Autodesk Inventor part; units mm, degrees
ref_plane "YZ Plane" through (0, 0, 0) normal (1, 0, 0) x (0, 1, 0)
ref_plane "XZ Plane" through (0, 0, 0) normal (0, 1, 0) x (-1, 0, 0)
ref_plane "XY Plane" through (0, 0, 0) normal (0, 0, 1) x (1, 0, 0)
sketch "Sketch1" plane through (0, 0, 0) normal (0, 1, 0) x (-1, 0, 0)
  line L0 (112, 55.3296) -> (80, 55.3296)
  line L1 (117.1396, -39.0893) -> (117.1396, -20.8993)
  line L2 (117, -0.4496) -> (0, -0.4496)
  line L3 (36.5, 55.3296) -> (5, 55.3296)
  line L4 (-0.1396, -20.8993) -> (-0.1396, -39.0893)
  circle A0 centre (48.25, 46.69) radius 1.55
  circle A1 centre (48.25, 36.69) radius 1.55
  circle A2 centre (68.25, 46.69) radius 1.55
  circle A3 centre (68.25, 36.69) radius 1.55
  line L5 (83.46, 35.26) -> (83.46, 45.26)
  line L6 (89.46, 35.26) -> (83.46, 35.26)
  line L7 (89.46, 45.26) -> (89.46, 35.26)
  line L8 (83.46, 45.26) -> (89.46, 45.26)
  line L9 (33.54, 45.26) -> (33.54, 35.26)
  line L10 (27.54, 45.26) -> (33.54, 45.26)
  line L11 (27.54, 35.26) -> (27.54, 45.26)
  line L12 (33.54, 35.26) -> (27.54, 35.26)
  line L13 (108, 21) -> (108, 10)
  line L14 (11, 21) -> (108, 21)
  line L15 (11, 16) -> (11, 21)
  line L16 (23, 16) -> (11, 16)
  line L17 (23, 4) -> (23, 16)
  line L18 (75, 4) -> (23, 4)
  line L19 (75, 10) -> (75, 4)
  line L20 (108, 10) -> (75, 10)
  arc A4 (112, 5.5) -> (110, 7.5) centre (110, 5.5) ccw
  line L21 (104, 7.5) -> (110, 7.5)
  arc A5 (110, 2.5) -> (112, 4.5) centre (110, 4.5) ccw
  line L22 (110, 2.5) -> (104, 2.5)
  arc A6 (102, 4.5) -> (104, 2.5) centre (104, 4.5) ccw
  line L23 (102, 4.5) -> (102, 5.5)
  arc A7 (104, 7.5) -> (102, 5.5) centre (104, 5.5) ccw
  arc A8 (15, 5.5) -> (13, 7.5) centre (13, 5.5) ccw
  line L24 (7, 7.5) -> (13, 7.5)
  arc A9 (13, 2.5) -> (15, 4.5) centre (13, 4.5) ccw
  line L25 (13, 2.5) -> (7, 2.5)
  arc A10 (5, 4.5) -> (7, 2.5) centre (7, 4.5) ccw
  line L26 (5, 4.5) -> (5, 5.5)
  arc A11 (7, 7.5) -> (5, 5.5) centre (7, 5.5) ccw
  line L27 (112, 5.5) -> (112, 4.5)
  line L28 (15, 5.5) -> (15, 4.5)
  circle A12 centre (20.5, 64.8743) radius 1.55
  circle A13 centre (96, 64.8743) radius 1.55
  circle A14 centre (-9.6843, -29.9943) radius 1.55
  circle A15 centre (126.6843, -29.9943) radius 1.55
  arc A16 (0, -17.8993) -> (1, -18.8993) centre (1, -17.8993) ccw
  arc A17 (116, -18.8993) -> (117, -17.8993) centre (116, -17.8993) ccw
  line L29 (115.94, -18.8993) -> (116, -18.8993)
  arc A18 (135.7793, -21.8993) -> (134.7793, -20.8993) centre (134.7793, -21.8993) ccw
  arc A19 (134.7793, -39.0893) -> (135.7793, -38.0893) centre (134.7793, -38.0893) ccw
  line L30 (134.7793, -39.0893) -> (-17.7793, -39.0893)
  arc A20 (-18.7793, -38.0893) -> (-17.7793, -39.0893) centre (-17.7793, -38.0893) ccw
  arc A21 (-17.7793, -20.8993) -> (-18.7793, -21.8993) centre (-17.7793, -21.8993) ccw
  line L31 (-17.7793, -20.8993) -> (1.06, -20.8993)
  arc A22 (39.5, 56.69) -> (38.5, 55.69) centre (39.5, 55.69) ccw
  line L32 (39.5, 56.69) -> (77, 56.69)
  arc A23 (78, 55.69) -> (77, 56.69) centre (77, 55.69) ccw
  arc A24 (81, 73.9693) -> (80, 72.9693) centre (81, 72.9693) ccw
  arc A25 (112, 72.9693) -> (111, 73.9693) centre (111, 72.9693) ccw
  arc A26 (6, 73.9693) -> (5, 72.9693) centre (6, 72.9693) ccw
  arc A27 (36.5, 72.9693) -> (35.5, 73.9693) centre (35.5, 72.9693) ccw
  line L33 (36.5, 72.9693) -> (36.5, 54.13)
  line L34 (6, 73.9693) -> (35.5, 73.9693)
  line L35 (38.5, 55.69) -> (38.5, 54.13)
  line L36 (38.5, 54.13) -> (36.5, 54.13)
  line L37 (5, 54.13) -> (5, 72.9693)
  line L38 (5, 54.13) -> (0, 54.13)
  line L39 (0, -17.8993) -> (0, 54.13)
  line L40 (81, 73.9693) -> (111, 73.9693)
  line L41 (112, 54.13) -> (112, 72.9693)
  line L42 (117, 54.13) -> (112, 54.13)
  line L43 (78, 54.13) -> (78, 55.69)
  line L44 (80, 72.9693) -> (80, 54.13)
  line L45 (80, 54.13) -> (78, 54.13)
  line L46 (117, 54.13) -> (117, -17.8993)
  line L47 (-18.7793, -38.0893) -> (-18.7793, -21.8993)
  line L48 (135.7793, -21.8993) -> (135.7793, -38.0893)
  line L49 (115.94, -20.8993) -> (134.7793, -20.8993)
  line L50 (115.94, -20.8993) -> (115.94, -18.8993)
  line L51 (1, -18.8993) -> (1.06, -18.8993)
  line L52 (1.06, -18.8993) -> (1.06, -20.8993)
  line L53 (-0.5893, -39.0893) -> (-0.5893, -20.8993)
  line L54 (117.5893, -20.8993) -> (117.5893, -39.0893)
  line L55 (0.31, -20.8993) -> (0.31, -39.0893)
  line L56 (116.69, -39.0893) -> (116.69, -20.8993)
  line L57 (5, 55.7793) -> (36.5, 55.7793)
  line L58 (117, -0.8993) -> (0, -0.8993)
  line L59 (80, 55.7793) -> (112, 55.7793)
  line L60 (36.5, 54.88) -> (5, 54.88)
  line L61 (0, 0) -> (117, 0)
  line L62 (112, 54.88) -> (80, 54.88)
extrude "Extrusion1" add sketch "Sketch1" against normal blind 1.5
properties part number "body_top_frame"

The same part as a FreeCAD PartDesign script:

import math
import FreeCAD as App
import Part
import Sketcher

V = App.Vector
Q = App.Units.Quantity


def add_polygon(sketch, points):
    """Adds a closed chain of lines whose ends are joined by coincident constraints."""
    first, n = sketch.GeometryCount, len(points)
    for a, b in zip(points, points[1:] + points[:1]):
        sketch.addGeometry(Part.LineSegment(App.Vector(*a, 0), App.Vector(*b, 0)), False)
    for i in range(n):
        sketch.addConstraint(Sketcher.Constraint("Coincident", first + i, 2, first + (i + 1) % n, 1))

doc = App.newDocument("Part")
body = doc.addObject("PartDesign::Body", "Body")

# Sketch on XZ plane
sketch1 = body.newObject("Sketcher::SketchObject", "Sketch")
sketch1.AttachmentSupport = (doc.getObject("XZ_Plane"), [""])
sketch1.MapMode = "FlatFace"
sketch1.addGeometry(Part.ArcOfCircle(Part.Circle(V(-111, 72.97, 0), V(0, 0, 1), 1), math.radians(90), math.radians(180)), False)  # 0
sketch1.addGeometry(Part.LineSegment(V(-111, 73.97, 0), V(-81, 73.97, 0)), False)  # 1
sketch1.addGeometry(Part.ArcOfCircle(Part.Circle(V(-81, 72.97, 0), V(0, 0, 1), 1), math.radians(0), math.radians(90)), False)  # 2
sketch1.addGeometry(Part.LineSegment(V(-80, 72.97, 0), V(-80, 54.13, 0)), False)  # 3
sketch1.addGeometry(Part.LineSegment(V(-80, 54.13, 0), V(-78, 54.13, 0)), False)  # 4
sketch1.addGeometry(Part.LineSegment(V(-78, 54.13, 0), V(-78, 55.69, 0)), False)  # 5
sketch1.addGeometry(Part.ArcOfCircle(Part.Circle(V(-77, 55.69, 0), V(0, 0, 1), 1), math.radians(90), math.radians(180)), False)  # 6
sketch1.addGeometry(Part.LineSegment(V(-77, 56.69, 0), V(-39.5, 56.69, 0)), False)  # 7
sketch1.addGeometry(Part.ArcOfCircle(Part.Circle(V(-39.5, 55.69, 0), V(0, 0, 1), 1), math.radians(0), math.radians(90)), False)  # 8
sketch1.addGeometry(Part.LineSegment(V(-38.5, 55.69, 0), V(-38.5, 54.13, 0)), False)  # 9
sketch1.addGeometry(Part.LineSegment(V(-38.5, 54.13, 0), V(-36.5, 54.13, 0)), False)  # 10
sketch1.addGeometry(Part.LineSegment(V(-36.5, 54.13, 0), V(-36.5, 72.97, 0)), False)  # 11
sketch1.addGeometry(Part.ArcOfCircle(Part.Circle(V(-35.5, 72.97, 0), V(0, 0, 1), 1), math.radians(90), math.radians(180)), False)  # 12
sketch1.addGeometry(Part.LineSegment(V(-35.5, 73.97, 0), V(-6, 73.97, 0)), False)  # 13
sketch1.addGeometry(Part.ArcOfCircle(Part.Circle(V(-6, 72.97, 0), V(0, 0, 1), 1), math.radians(0), math.radians(90)), False)  # 14
sketch1.addGeometry(Part.LineSegment(V(-5, 72.97, 0), V(-5, 54.13, 0)), False)  # 15
sketch1.addGeometry(Part.LineSegment(V(-5, 54.13, 0), V(0, 54.13, 0)), False)  # 16
sketch1.addGeometry(Part.LineSegment(V(0, 54.13, 0), V(0, -17.9, 0)), False)  # 17
sketch1.addGeometry(Part.ArcOfCircle(Part.Circle(V(-1, -17.9, 0), V(0, 0, 1), 1), math.radians(-90), math.radians(0)), False)  # 18
sketch1.addGeometry(Part.LineSegment(V(-1, -18.9, 0), V(-1.06, -18.9, 0)), False)  # 19
sketch1.addGeometry(Part.LineSegment(V(-1.06, -18.9, 0), V(-1.06, -20.9, 0)), False)  # 20
sketch1.addGeometry(Part.LineSegment(V(-1.06, -20.9, 0), V(17.78, -20.9, 0)), False)  # 21
sketch1.addGeometry(Part.ArcOfCircle(Part.Circle(V(17.78, -21.9, 0), V(0, 0, 1), 1), math.radians(0), math.radians(90)), False)  # 22
sketch1.addGeometry(Part.LineSegment(V(18.78, -21.9, 0), V(18.78, -38.09, 0)), False)  # 23
sketch1.addGeometry(Part.ArcOfCircle(Part.Circle(V(17.78, -38.09, 0), V(0, 0, 1), 1), math.radians(-90), math.radians(0)), False)  # 24
sketch1.addGeometry(Part.LineSegment(V(17.78, -39.09, 0), V(-134.78, -39.09, 0)), False)  # 25
sketch1.addGeometry(Part.ArcOfCircle(Part.Circle(V(-134.78, -38.09, 0), V(0, 0, 1), 1), math.radians(180), math.radians(270)), False)  # 26
sketch1.addGeometry(Part.LineSegment(V(-135.78, -38.09, 0), V(-135.78, -21.9, 0)), False)  # 27
sketch1.addGeometry(Part.ArcOfCircle(Part.Circle(V(-134.78, -21.9, 0), V(0, 0, 1), 1), math.radians(90), math.radians(180)), False)  # 28
sketch1.addGeometry(Part.LineSegment(V(-134.78, -20.9, 0), V(-115.94, -20.9, 0)), False)  # 29
sketch1.addGeometry(Part.LineSegment(V(-115.94, -20.9, 0), V(-115.94, -18.9, 0)), False)  # 30
sketch1.addGeometry(Part.LineSegment(V(-115.94, -18.9, 0), V(-116, -18.9, 0)), False)  # 31
sketch1.addGeometry(Part.ArcOfCircle(Part.Circle(V(-116, -17.9, 0), V(0, 0, 1), 1), math.radians(180), math.radians(270)), False)  # 32
sketch1.addGeometry(Part.LineSegment(V(-117, -17.9, 0), V(-117, 54.13, 0)), False)  # 33
sketch1.addGeometry(Part.LineSegment(V(-117, 54.13, 0), V(-112, 54.13, 0)), False)  # 34
sketch1.addGeometry(Part.LineSegment(V(-112, 54.13, 0), V(-112, 72.97, 0)), False)  # 35
sketch1.addGeometry(Part.Circle(V(-68.25, 46.69, 0), V(0, 0, 1), 1.55), False)  # 36
sketch1.addGeometry(Part.ArcOfCircle(Part.Circle(V(-13, 5.5, 0), V(0, 0, 1), 2), math.radians(90), math.radians(180)), False)  # 37
sketch1.addGeometry(Part.LineSegment(V(-15, 5.5, 0), V(-15, 4.5, 0)), False)  # 38
sketch1.addGeometry(Part.ArcOfCircle(Part.Circle(V(-13, 4.5, 0), V(0, 0, 1), 2), math.radians(180), math.radians(270)), False)  # 39
sketch1.addGeometry(Part.LineSegment(V(-13, 2.5, 0), V(-7, 2.5, 0)), False)  # 40
sketch1.addGeometry(Part.ArcOfCircle(Part.Circle(V(-7, 4.5, 0), V(0, 0, 1), 2), math.radians(-90), math.radians(0)), False)  # 41
sketch1.addGeometry(Part.LineSegment(V(-5, 4.5, 0), V(-5, 5.5, 0)), False)  # 42
sketch1.addGeometry(Part.ArcOfCircle(Part.Circle(V(-7, 5.5, 0), V(0, 0, 1), 2), math.radians(0), math.radians(90)), False)  # 43
sketch1.addGeometry(Part.LineSegment(V(-7, 7.5, 0), V(-13, 7.5, 0)), False)  # 44
add_polygon(sketch1, [(-11, 21), (-108, 21), (-108, 10), (-75, 10), (-75, 4), (-23, 4), (-23, 16), (-11, 16)])  # lines 45-52
sketch1.addGeometry(Part.ArcOfCircle(Part.Circle(V(-110, 5.5, 0), V(0, 0, 1), 2), math.radians(90), math.radians(180)), False)  # 53
sketch1.addGeometry(Part.LineSegment(V(-112, 5.5, 0), V(-112, 4.5, 0)), False)  # 54
sketch1.addGeometry(Part.ArcOfCircle(Part.Circle(V(-110, 4.5, 0), V(0, 0, 1), 2), math.radians(180), math.radians(270)), False)  # 55
sketch1.addGeometry(Part.LineSegment(V(-110, 2.5, 0), V(-104, 2.5, 0)), False)  # 56
sketch1.addGeometry(Part.ArcOfCircle(Part.Circle(V(-104, 4.5, 0), V(0, 0, 1), 2), math.radians(-90), math.radians(0)), False)  # 57
sketch1.addGeometry(Part.LineSegment(V(-102, 4.5, 0), V(-102, 5.5, 0)), False)  # 58
sketch1.addGeometry(Part.ArcOfCircle(Part.Circle(V(-104, 5.5, 0), V(0, 0, 1), 2), math.radians(0), math.radians(90)), False)  # 59
sketch1.addGeometry(Part.LineSegment(V(-104, 7.5, 0), V(-110, 7.5, 0)), False)  # 60
add_polygon(sketch1, [(-27.54, 45.26), (-33.54, 45.26), (-33.54, 35.26), (-27.54, 35.26)])  # lines 61-64
sketch1.addGeometry(Part.Circle(V(-48.25, 36.69, 0), V(0, 0, 1), 1.55), False)  # 65
sketch1.addGeometry(Part.Circle(V(-48.25, 46.69, 0), V(0, 0, 1), 1.55), False)  # 66
sketch1.addGeometry(Part.Circle(V(-68.25, 36.69, 0), V(0, 0, 1), 1.55), False)  # 67
add_polygon(sketch1, [(-89.46, 35.26), (-83.46, 35.26), (-83.46, 45.26), (-89.46, 45.26)])  # lines 68-71
sketch1.addGeometry(Part.Circle(V(-96, 64.87, 0), V(0, 0, 1), 1.55), False)  # 72
sketch1.addGeometry(Part.Circle(V(-20.5, 64.87, 0), V(0, 0, 1), 1.55), False)  # 73
sketch1.addGeometry(Part.Circle(V(-126.68, -29.99, 0), V(0, 0, 1), 1.55), False)  # 74
sketch1.addGeometry(Part.Circle(V(9.68, -29.99, 0), V(0, 0, 1), 1.55), False)  # 75
sketch1.addConstraint([
    Sketcher.Constraint("Tangent", 0, 1, 1, 1),
    Sketcher.Constraint("Tangent", 1, 2, 2, 2),
    Sketcher.Constraint("Tangent", 2, 1, 3, 1),
    Sketcher.Constraint("Coincident", 3, 2, 4, 1),
    Sketcher.Constraint("Coincident", 4, 2, 5, 1),
    Sketcher.Constraint("Tangent", 5, 2, 6, 2),
    Sketcher.Constraint("Tangent", 6, 1, 7, 1),
    Sketcher.Constraint("Tangent", 7, 2, 8, 2),
    Sketcher.Constraint("Tangent", 8, 1, 9, 1),
    Sketcher.Constraint("Coincident", 9, 2, 10, 1),
    Sketcher.Constraint("Coincident", 10, 2, 11, 1),
    Sketcher.Constraint("Tangent", 11, 2, 12, 2),
    Sketcher.Constraint("Tangent", 12, 1, 13, 1),
    Sketcher.Constraint("Tangent", 13, 2, 14, 2),
    Sketcher.Constraint("Tangent", 14, 1, 15, 1),
    Sketcher.Constraint("Coincident", 15, 2, 16, 1),
    Sketcher.Constraint("Coincident", 16, 2, 17, 1),
    Sketcher.Constraint("Tangent", 17, 2, 18, 2),
    Sketcher.Constraint("Tangent", 18, 1, 19, 1),
    Sketcher.Constraint("Coincident", 19, 2, 20, 1),
    Sketcher.Constraint("Coincident", 20, 2, 21, 1),
    Sketcher.Constraint("Tangent", 21, 2, 22, 2),
    Sketcher.Constraint("Tangent", 22, 1, 23, 1),
    Sketcher.Constraint("Tangent", 23, 2, 24, 2),
    Sketcher.Constraint("Tangent", 24, 1, 25, 1),
    Sketcher.Constraint("Tangent", 25, 2, 26, 2),
    Sketcher.Constraint("Tangent", 26, 1, 27, 1),
    Sketcher.Constraint("Tangent", 27, 2, 28, 2),
    Sketcher.Constraint("Tangent", 28, 1, 29, 1),
    Sketcher.Constraint("Coincident", 29, 2, 30, 1),
    Sketcher.Constraint("Coincident", 30, 2, 31, 1),
    Sketcher.Constraint("Tangent", 31, 2, 32, 2),
    Sketcher.Constraint("Tangent", 32, 1, 33, 1),
    Sketcher.Constraint("Coincident", 33, 2, 34, 1),
    Sketcher.Constraint("Coincident", 34, 2, 35, 1),
    Sketcher.Constraint("Tangent", 35, 2, 0, 2),
    Sketcher.Constraint("Tangent", 37, 2, 38, 1),
    Sketcher.Constraint("Tangent", 38, 2, 39, 1),
    Sketcher.Constraint("Tangent", 39, 2, 40, 1),
    Sketcher.Constraint("Tangent", 40, 2, 41, 1),
    Sketcher.Constraint("Tangent", 41, 2, 42, 1),
    Sketcher.Constraint("Tangent", 42, 2, 43, 1),
    Sketcher.Constraint("Tangent", 43, 2, 44, 1),
    Sketcher.Constraint("Tangent", 44, 2, 37, 1),
    Sketcher.Constraint("Tangent", 53, 2, 54, 1),
    Sketcher.Constraint("Tangent", 54, 2, 55, 1),
    Sketcher.Constraint("Tangent", 55, 2, 56, 1),
    Sketcher.Constraint("Tangent", 56, 2, 57, 1),
    Sketcher.Constraint("Tangent", 57, 2, 58, 1),
    Sketcher.Constraint("Tangent", 58, 2, 59, 1),
    Sketcher.Constraint("Tangent", 59, 2, 60, 1),
    Sketcher.Constraint("Tangent", 60, 2, 53, 1),
    Sketcher.Constraint("Horizontal", 1),
    Sketcher.Constraint("Vertical", 3),
    Sketcher.Constraint("Horizontal", 4),
    Sketcher.Constraint("Vertical", 5),
    Sketcher.Constraint("Horizontal", 7),
    Sketcher.Constraint("Vertical", 9),
    Sketcher.Constraint("Horizontal", 10),
    Sketcher.Constraint("Vertical", 11),
    Sketcher.Constraint("Horizontal", 13),
    Sketcher.Constraint("Vertical", 15),
    Sketcher.Constraint("Horizontal", 16),
    Sketcher.Constraint("Vertical", 17),
    Sketcher.Constraint("Horizontal", 19),
    Sketcher.Constraint("Vertical", 20),
    Sketcher.Constraint("Horizontal", 21),
    Sketcher.Constraint("Vertical", 23),
    Sketcher.Constraint("Horizontal", 25),
    Sketcher.Constraint("Vertical", 27),
    Sketcher.Constraint("Horizontal", 29),
    Sketcher.Constraint("Vertical", 30),
    Sketcher.Constraint("Horizontal", 31),
    Sketcher.Constraint("Vertical", 33),
    Sketcher.Constraint("Horizontal", 34),
    Sketcher.Constraint("Vertical", 35),
    Sketcher.Constraint("Vertical", 38),
    Sketcher.Constraint("Horizontal", 40),
    Sketcher.Constraint("Vertical", 42),
    Sketcher.Constraint("Horizontal", 44),
    Sketcher.Constraint("Horizontal", 45),
    Sketcher.Constraint("Vertical", 46),
    Sketcher.Constraint("Horizontal", 47),
    Sketcher.Constraint("Vertical", 48),
    Sketcher.Constraint("Horizontal", 49),
    Sketcher.Constraint("Vertical", 50),
    Sketcher.Constraint("Horizontal", 51),
    Sketcher.Constraint("Vertical", 52),
    Sketcher.Constraint("Vertical", 54),
    Sketcher.Constraint("Horizontal", 56),
    Sketcher.Constraint("Vertical", 58),
    Sketcher.Constraint("Horizontal", 60),
    Sketcher.Constraint("Horizontal", 61),
    Sketcher.Constraint("Vertical", 62),
    Sketcher.Constraint("Horizontal", 63),
    Sketcher.Constraint("Vertical", 64),
    Sketcher.Constraint("Horizontal", 68),
    Sketcher.Constraint("Vertical", 69),
    Sketcher.Constraint("Horizontal", 70),
    Sketcher.Constraint("Vertical", 71),
    Sketcher.Constraint("Equal", 0, 2),
    Sketcher.Constraint("Equal", 2, 6),
    Sketcher.Constraint("Equal", 6, 8),
    Sketcher.Constraint("Equal", 8, 12),
    Sketcher.Constraint("Equal", 12, 14),
    Sketcher.Constraint("Equal", 14, 18),
    Sketcher.Constraint("Equal", 18, 22),
    Sketcher.Constraint("Equal", 22, 24),
    Sketcher.Constraint("Equal", 24, 26),
    Sketcher.Constraint("Equal", 26, 28),
    Sketcher.Constraint("Equal", 28, 32),
    Sketcher.Constraint("Equal", 37, 39),
    Sketcher.Constraint("Equal", 39, 41),
    Sketcher.Constraint("Equal", 41, 43),
    Sketcher.Constraint("Equal", 43, 53),
    Sketcher.Constraint("Equal", 53, 55),
    Sketcher.Constraint("Equal", 55, 57),
    Sketcher.Constraint("Equal", 57, 59),
    Sketcher.Constraint("Equal", 36, 65),
    Sketcher.Constraint("Equal", 65, 66),
    Sketcher.Constraint("Equal", 66, 67),
    Sketcher.Constraint("Equal", 67, 72),
    Sketcher.Constraint("Equal", 72, 73),
    Sketcher.Constraint("Equal", 73, 74),
    Sketcher.Constraint("Equal", 74, 75),
    Sketcher.Constraint("PointOnObject", 16, 2, -2),
    Sketcher.Constraint("Horizontal", 2, 3, 12, 3),
    Sketcher.Constraint("Horizontal", 22, 3, 28, 3),
    Sketcher.Constraint("Horizontal", 18, 3, 32, 3),
    Sketcher.Constraint("Horizontal", 43, 3, 53, 3),
    Sketcher.Constraint("Horizontal", 41, 3, 55, 3),
    Sketcher.Constraint("Horizontal", 36, 3, 66, 3),
    Sketcher.Constraint("Horizontal", 65, 3, 67, 3),
    Sketcher.Constraint("Horizontal", 72, 3, 73, 3),
    Sketcher.Constraint("Horizontal", 74, 3, 75, 3),
    Sketcher.Constraint("Horizontal", 4, 2, 9, 2),
    Sketcher.Constraint("Horizontal", 10, 2, 15, 2),
    Sketcher.Constraint("Horizontal", 16, 2, 33, 2),
    Sketcher.Constraint("Horizontal", 63, 2, 68, 2),
    Sketcher.Constraint("Horizontal", 64, 2, 69, 2),
    Sketcher.Constraint("Vertical", 65, 3, 66, 3),
    Sketcher.Constraint("Vertical", 36, 3, 67, 3),
    Sketcher.Constraint("Vertical", 15, 2, 41, 2),
    Sketcher.Constraint("Vertical", 35, 2, 53, 2),
    Sketcher.Constraint("Equal", 4, 10),
    Sketcher.Constraint("Equal", 21, 29),
    Sketcher.Constraint("Equal", 19, 31),
    Sketcher.Constraint("Equal", 16, 34),
    Sketcher.Constraint("Equal", 44, 56),
    Sketcher.Constraint("Equal", 60, 61),
    Sketcher.Constraint("Equal", 63, 68),
    Sketcher.Constraint("Equal", 29, 3),
    Sketcher.Constraint("Equal", 10, 20),
    Sketcher.Constraint("Equal", 70, 48),
    Sketcher.Constraint("Equal", 51, 50),
    Sketcher.Constraint("Equal", 34, 52),
    Sketcher.Constraint("Radius", 0, Q("1 mm")),
    Sketcher.Constraint("Radius", 37, Q("2 mm")),
    Sketcher.Constraint("Diameter", 36, Q("3.1 mm")),
    Sketcher.Constraint("DistanceX", 1, 1, 1, 2, Q("30 mm")),
    Sketcher.Constraint("DistanceX", 4, 1, 4, 2, Q("2 mm")),
    Sketcher.Constraint("DistanceX", 16, 1, 16, 2, Q("5 mm")),
    Sketcher.Constraint("DistanceX", 40, 1, 40, 2, Q("6 mm")),
    Sketcher.Constraint("DistanceX", 45, 2, 45, 1, Q("97 mm")),
    Sketcher.Constraint("DistanceX", 47, 1, 47, 2, Q("33 mm")),
    Sketcher.Constraint("DistanceX", 49, 1, 49, 2, Q("52 mm")),
    Sketcher.Constraint("DistanceY", 38, 2, 38, 1, Q("1 mm")),
    Sketcher.Constraint("DistanceY", 62, 2, 62, 1, Q("10 mm")),
    Sketcher.Constraint("DistanceX", 7, 1, 7, 2, Q("37.5 mm")),
    Sketcher.Constraint("DistanceX", 13, 1, 13, 2, Q("29.5 mm")),
    Sketcher.Constraint("DistanceX", 72, 3, -1, 1, Q("96 mm")),
    Sketcher.Constraint("DistanceX", 45, 2, -1, 1, Q("108 mm")),
    Sketcher.Constraint("DistanceY", -1, 1, 45, 2, Q("21 mm")),
    Sketcher.Constraint("DistanceX", 19, 2, 19, 1, Q("0.06 mm")),
    Sketcher.Constraint("DistanceY", 5, 1, 5, 2, Q("1.56 mm")),
    Sketcher.Constraint("DistanceY", 23, 2, 23, 1, Q("16.19 mm")),
    Sketcher.Constraint("DistanceY", -1, 1, 37, 3, Q("5.5 mm")),
    Sketcher.Constraint("DistanceX", 73, 3, -1, 1, Q("20.5 mm")),
    Sketcher.Constraint("DistanceY", -1, 1, 6, 3, Q("55.69 mm")),
    Sketcher.Constraint("DistanceX", 36, 3, -1, 1, Q("68.25 mm")),
    Sketcher.Constraint("DistanceY", -1, 1, 36, 3, Q("46.69 mm")),
    Sketcher.Constraint("DistanceX", 65, 3, -1, 1, Q("48.25 mm")),
    Sketcher.Constraint("DistanceY", -1, 1, 65, 3, Q("36.69 mm")),
    Sketcher.Constraint("DistanceX", 61, 2, -1, 1, Q("33.54 mm")),
    Sketcher.Constraint("DistanceY", -1, 1, 61, 2, Q("45.26 mm")),
    Sketcher.Constraint("DistanceX", 68, 2, -1, 1, Q("83.46 mm")),
    Sketcher.Constraint("DistanceX", 21, 1, 21, 2, Q("18.8393 mm")),
    Sketcher.Constraint("DistanceY", 17, 2, 17, 1, Q("72.0293 mm")),
    Sketcher.Constraint("DistanceY", -1, 1, 72, 3, Q("64.8743 mm")),
    Sketcher.Constraint("DistanceX", 74, 3, -1, 1, Q("126.6843 mm")),
    Sketcher.Constraint("DistanceY", 74, 3, -1, 1, Q("29.9943 mm")),
    Sketcher.Constraint("DistanceX", -1, 1, 75, 3, Q("9.6843 mm")),
])
pad1 = body.newObject("PartDesign::Pad", "Pad")
pad1.Profile = sketch1
pad1.Length = 1.5

doc.recompute()
